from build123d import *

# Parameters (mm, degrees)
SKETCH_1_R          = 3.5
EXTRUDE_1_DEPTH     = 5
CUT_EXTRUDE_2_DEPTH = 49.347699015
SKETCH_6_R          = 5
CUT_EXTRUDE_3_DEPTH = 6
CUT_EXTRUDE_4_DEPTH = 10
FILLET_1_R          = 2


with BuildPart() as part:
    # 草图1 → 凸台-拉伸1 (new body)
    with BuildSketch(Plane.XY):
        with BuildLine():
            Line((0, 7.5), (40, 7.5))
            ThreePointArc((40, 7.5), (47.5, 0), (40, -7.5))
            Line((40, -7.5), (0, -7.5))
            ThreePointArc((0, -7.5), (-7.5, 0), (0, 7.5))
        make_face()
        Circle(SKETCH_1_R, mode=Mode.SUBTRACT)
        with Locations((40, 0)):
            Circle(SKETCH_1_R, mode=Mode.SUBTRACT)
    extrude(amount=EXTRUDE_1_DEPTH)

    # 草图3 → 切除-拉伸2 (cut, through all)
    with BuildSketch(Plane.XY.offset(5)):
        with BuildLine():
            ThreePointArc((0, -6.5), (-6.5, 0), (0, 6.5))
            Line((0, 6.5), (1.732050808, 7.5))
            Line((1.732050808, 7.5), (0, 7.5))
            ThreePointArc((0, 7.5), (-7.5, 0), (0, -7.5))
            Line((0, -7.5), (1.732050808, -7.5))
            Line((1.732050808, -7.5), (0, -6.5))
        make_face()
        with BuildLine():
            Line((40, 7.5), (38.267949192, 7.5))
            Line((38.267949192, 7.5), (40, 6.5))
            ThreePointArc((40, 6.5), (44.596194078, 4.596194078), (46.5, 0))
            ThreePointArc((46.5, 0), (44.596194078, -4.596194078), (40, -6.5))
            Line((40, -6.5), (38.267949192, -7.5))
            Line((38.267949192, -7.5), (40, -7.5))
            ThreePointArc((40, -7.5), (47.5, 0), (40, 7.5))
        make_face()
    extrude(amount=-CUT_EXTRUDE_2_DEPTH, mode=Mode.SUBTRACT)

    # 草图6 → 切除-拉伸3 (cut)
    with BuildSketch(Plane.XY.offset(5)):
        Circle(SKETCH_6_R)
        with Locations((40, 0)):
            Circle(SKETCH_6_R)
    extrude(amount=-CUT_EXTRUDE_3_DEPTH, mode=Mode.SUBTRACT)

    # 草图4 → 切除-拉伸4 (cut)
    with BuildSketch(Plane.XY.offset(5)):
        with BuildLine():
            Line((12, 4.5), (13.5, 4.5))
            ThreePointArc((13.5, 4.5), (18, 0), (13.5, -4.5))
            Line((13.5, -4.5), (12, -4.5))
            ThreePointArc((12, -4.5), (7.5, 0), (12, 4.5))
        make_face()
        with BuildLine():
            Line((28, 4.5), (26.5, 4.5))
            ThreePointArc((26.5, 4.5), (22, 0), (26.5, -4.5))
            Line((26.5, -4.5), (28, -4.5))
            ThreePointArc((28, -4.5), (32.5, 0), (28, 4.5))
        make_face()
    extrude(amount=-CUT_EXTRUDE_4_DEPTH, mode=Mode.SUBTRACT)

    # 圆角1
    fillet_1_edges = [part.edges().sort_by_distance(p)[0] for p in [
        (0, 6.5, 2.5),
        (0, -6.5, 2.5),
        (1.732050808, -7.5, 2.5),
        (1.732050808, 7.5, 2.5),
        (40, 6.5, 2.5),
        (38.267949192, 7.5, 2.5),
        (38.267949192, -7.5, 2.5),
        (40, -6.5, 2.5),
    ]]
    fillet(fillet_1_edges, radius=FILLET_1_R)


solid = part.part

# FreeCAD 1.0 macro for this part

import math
import FreeCAD as App
import Part
import Sketcher

V = App.Vector
Q = App.Units.Quantity


def edges_at(feature, points):
    """Names of the edges that pass closest to the given points."""
    edges = feature.Shape.Edges
    near = lambda p: min(range(len(edges)), key=lambda i: edges[i].distToShape(Part.Vertex(*p))[0])
    return sorted({f"Edge{near(p) + 1}" for p in points})

doc = App.newDocument("Part")
body = doc.addObject("PartDesign::Body", "Body")

sketch1 = body.newObject("Sketcher::SketchObject", "Sketch")
sketch1.AttachmentSupport = (doc.getObject("XY_Plane"), [""])
sketch1.MapMode = "FlatFace"
sketch1.addGeometry(Part.LineSegment(V(40, 7.5, 0), V(0, 7.5, 0)), False)
sketch1.addGeometry(Part.ArcOfCircle(Part.Circle(V(0, 0, 0), V(0, 0, 1), 7.5), math.radians(90), math.radians(270)), False)
sketch1.addGeometry(Part.LineSegment(V(0, -7.5, 0), V(40, -7.5, 0)), False)
sketch1.addGeometry(Part.ArcOfCircle(Part.Circle(V(40, 0, 0), V(0, 0, 1), 7.5), math.radians(-90), math.radians(90)), False)
sketch1.addGeometry(Part.Circle(V(40, 0, 0), V(0, 0, 1), 3.5), False)
sketch1.addGeometry(Part.Circle(V(0, 0, 0), V(0, 0, 1), 3.5), False)
sketch1.addConstraint(Sketcher.Constraint("Tangent", 0, 2, 1, 1))
sketch1.addConstraint(Sketcher.Constraint("Tangent", 1, 2, 2, 1))
sketch1.addConstraint(Sketcher.Constraint("Tangent", 2, 2, 3, 1))
sketch1.addConstraint(Sketcher.Constraint("Tangent", 3, 2, 0, 1))
sketch1.addConstraint(Sketcher.Constraint("Horizontal", 0))
sketch1.addConstraint(Sketcher.Constraint("Horizontal", 2))
sketch1.addConstraint(Sketcher.Constraint("Coincident", 1, 3, -1, 1))
sketch1.addConstraint(Sketcher.Constraint("Coincident", 5, 3, -1, 1))
sketch1.addConstraint(Sketcher.Constraint("Coincident", 4, 3, 3, 3))
sketch1.addConstraint(Sketcher.Constraint("Equal", 4, 5))
sketch1.addConstraint(Sketcher.Constraint("Diameter", 4, Q("7 mm")))
sketch1.addConstraint(Sketcher.Constraint("Radius", 1, Q("7.5 mm")))
sketch1.addConstraint(Sketcher.Constraint("DistanceX", 0, 2, 0, 1, Q("40 mm")))
pad1 = body.newObject("PartDesign::Pad", "Pad")
pad1.Profile = sketch1
pad1.Length = 5

sketch2 = body.newObject("Sketcher::SketchObject", "Sketch001")
sketch2.AttachmentSupport = (doc.getObject("XY_Plane"), [""])
sketch2.MapMode = "FlatFace"
sketch2.AttachmentOffset = App.Placement(V(0, 0, 5), App.Rotation())
sketch2.addGeometry(Part.ArcOfCircle(Part.Circle(V(0, 0, 0), V(0, 0, 1), 6.5), math.radians(90), math.radians(270)), False)
sketch2.addGeometry(Part.LineSegment(V(0, 6.5, 0), V(1.732051, 7.5, 0)), False)
sketch2.addGeometry(Part.LineSegment(V(1.732051, 7.5, 0), V(0, 7.5, 0)), False)
sketch2.addGeometry(Part.ArcOfCircle(Part.Circle(V(0, 0, 0), V(0, 0, 1), 7.5), math.radians(90), math.radians(270)), False)
sketch2.addGeometry(Part.LineSegment(V(0, -7.5, 0), V(1.732051, -7.5, 0)), False)
sketch2.addGeometry(Part.LineSegment(V(1.732051, -7.5, 0), V(0, -6.5, 0)), False)
sketch2.addGeometry(Part.LineSegment(V(40, 7.5, 0), V(38.267949, 7.5, 0)), False)
sketch2.addGeometry(Part.LineSegment(V(38.267949, 7.5, 0), V(40, 6.5, 0)), False)
sketch2.addGeometry(Part.ArcOfCircle(Part.Circle(V(40, 0, 0), V(0, 0, 1), 6.5), math.radians(0), math.radians(90)), False)
sketch2.addGeometry(Part.ArcOfCircle(Part.Circle(V(40, 0, 0), V(0, 0, 1), 6.5), math.radians(-90), math.radians(0)), False)
sketch2.addGeometry(Part.LineSegment(V(40, -6.5, 0), V(38.267949, -7.5, 0)), False)
sketch2.addGeometry(Part.LineSegment(V(38.267949, -7.5, 0), V(40, -7.5, 0)), False)
sketch2.addGeometry(Part.ArcOfCircle(Part.Circle(V(40, 0, 0), V(0, 0, 1), 7.5), math.radians(-90), math.radians(90)), False)
sketch2.addConstraint(Sketcher.Constraint("Coincident", 0, 1, 1, 1))
sketch2.addConstraint(Sketcher.Constraint("Coincident", 1, 2, 2, 1))
sketch2.addConstraint(Sketcher.Constraint("Tangent", 2, 2, 3, 1))
sketch2.addConstraint(Sketcher.Constraint("Tangent", 3, 2, 4, 1))
sketch2.addConstraint(Sketcher.Constraint("Coincident", 4, 2, 5, 1))
sketch2.addConstraint(Sketcher.Constraint("Coincident", 5, 2, 0, 2))
sketch2.addConstraint(Sketcher.Constraint("Coincident", 6, 2, 7, 1))
sketch2.addConstraint(Sketcher.Constraint("Coincident", 7, 2, 8, 2))
sketch2.addConstraint(Sketcher.Constraint("Tangent", 8, 1, 9, 2))
sketch2.addConstraint(Sketcher.Constraint("Coincident", 9, 1, 10, 1))
sketch2.addConstraint(Sketcher.Constraint("Coincident", 10, 2, 11, 1))
sketch2.addConstraint(Sketcher.Constraint("Tangent", 11, 2, 12, 1))
sketch2.addConstraint(Sketcher.Constraint("Tangent", 12, 2, 6, 1))
sketch2.addConstraint(Sketcher.Constraint("Horizontal", 2))
sketch2.addConstraint(Sketcher.Constraint("Horizontal", 4))
sketch2.addConstraint(Sketcher.Constraint("Horizontal", 6))
sketch2.addConstraint(Sketcher.Constraint("Horizontal", 11))
sketch2.addConstraint(Sketcher.Constraint("Coincident", 0, 3, -1, 1))
sketch2.addConstraint(Sketcher.Constraint("Coincident", 3, 3, -1, 1))
sketch2.addConstraint(Sketcher.Constraint("Coincident", 12, 3, 8, 3))
sketch2.addConstraint(Sketcher.Constraint("Equal", 0, 8))
sketch2.addConstraint(Sketcher.Constraint("Equal", 8, 9))
sketch2.addConstraint(Sketcher.Constraint("Equal", 3, 12))
sketch2.addConstraint(Sketcher.Constraint("Symmetric", 7, 2, 9, 1, -1))
sketch2.addConstraint(Sketcher.Constraint("PointOnObject", 0, 1, -2))
sketch2.addConstraint(Sketcher.Constraint("PointOnObject", 5, 2, -2))
sketch2.addConstraint(Sketcher.Constraint("PointOnObject", 8, 1, -1))
sketch2.addConstraint(Sketcher.Constraint("Parallel", 5, 7))
sketch2.addConstraint(Sketcher.Constraint("Parallel", 1, 10))
sketch2.addConstraint(Sketcher.Constraint("Vertical", 1, 2, 4, 2))
sketch2.addConstraint(Sketcher.Constraint("Vertical", 12, 3, 7, 2))
sketch2.addConstraint(Sketcher.Constraint("Radius", 0, Q("6.5 mm")))
sketch2.addConstraint(Sketcher.Constraint("Radius", 3, Q("7.5 mm")))
sketch2.addConstraint(Sketcher.Constraint("Angle", 1, Q("30 deg")))
sketch2.addConstraint(Sketcher.Constraint("DistanceX", -1, 1, 8, 3, Q("40 mm")))
pocket1 = body.newObject("PartDesign::Pocket", "Pocket")
pocket1.Profile = sketch2
pocket1.Type = "ThroughAll"

sketch3 = body.newObject("Sketcher::SketchObject", "Sketch002")
sketch3.AttachmentSupport = (doc.getObject("XY_Plane"), [""])
sketch3.MapMode = "FlatFace"
sketch3.AttachmentOffset = App.Placement(V(0, 0, 5), App.Rotation())
sketch3.addGeometry(Part.Circle(V(0, 0, 0), V(0, 0, 1), 5), False)
sketch3.addGeometry(Part.Circle(V(40, 0, 0), V(0, 0, 1), 5), False)
sketch3.addConstraint(Sketcher.Constraint("Coincident", 0, 3, -1, 1))
sketch3.addConstraint(Sketcher.Constraint("Equal", 0, 1))
sketch3.addConstraint(Sketcher.Constraint("PointOnObject", 1, 3, -1))
sketch3.addConstraint(Sketcher.Constraint("Diameter", 0, Q("10 mm")))
sketch3.addConstraint(Sketcher.Constraint("DistanceX", -1, 1, 1, 3, Q("40 mm")))
pocket2 = body.newObject("PartDesign::Pocket", "Pocket001")
pocket2.Profile = sketch3
pocket2.Length = 6

sketch4 = body.newObject("Sketcher::SketchObject", "Sketch003")
sketch4.AttachmentSupport = (doc.getObject("XY_Plane"), [""])
sketch4.MapMode = "FlatFace"
sketch4.AttachmentOffset = App.Placement(V(0, 0, 5), App.Rotation())
sketch4.addGeometry(Part.LineSegment(V(13.5, 4.5, 0), V(12, 4.5, 0)), False)
sketch4.addGeometry(Part.ArcOfCircle(Part.Circle(V(12, 0, 0), V(0, 0, 1), 4.5), math.radians(90), math.radians(270)), False)
sketch4.addGeometry(Part.LineSegment(V(12, -4.5, 0), V(13.5, -4.5, 0)), False)
sketch4.addGeometry(Part.ArcOfCircle(Part.Circle(V(13.5, 0, 0), V(0, 0, 1), 4.5), math.radians(-90), math.radians(90)), False)
sketch4.addGeometry(Part.LineSegment(V(28, 4.5, 0), V(26.5, 4.5, 0)), False)
sketch4.addGeometry(Part.ArcOfCircle(Part.Circle(V(26.5, 0, 0), V(0, 0, 1), 4.5), math.radians(90), math.radians(270)), False)
sketch4.addGeometry(Part.LineSegment(V(26.5, -4.5, 0), V(28, -4.5, 0)), False)
sketch4.addGeometry(Part.ArcOfCircle(Part.Circle(V(28, 0, 0), V(0, 0, 1), 4.5), math.radians(-90), math.radians(90)), False)
sketch4.addConstraint(Sketcher.Constraint("Tangent", 0, 2, 1, 1))
sketch4.addConstraint(Sketcher.Constraint("Tangent", 1, 2, 2, 1))
sketch4.addConstraint(Sketcher.Constraint("Tangent", 2, 2, 3, 1))
sketch4.addConstraint(Sketcher.Constraint("Tangent", 3, 2, 0, 1))
sketch4.addConstraint(Sketcher.Constraint("Tangent", 4, 2, 5, 1))
sketch4.addConstraint(Sketcher.Constraint("Tangent", 5, 2, 6, 1))
sketch4.addConstraint(Sketcher.Constraint("Tangent", 6, 2, 7, 1))
sketch4.addConstraint(Sketcher.Constraint("Tangent", 7, 2, 4, 1))
sketch4.addConstraint(Sketcher.Constraint("Horizontal", 0))
sketch4.addConstraint(Sketcher.Constraint("Horizontal", 2))
sketch4.addConstraint(Sketcher.Constraint("Horizontal", 4))
sketch4.addConstraint(Sketcher.Constraint("Horizontal", 6))
sketch4.addConstraint(Sketcher.Constraint("Equal", 3, 5))
sketch4.addConstraint(Sketcher.Constraint("PointOnObject", 1, 3, -1))
sketch4.addConstraint(Sketcher.Constraint("PointOnObject", 5, 3, -1))
sketch4.addConstraint(Sketcher.Constraint("Equal", 2, 4))
sketch4.addConstraint(Sketcher.Constraint("Radius", 1, Q("4.5 mm")))
sketch4.addConstraint(Sketcher.Constraint("DistanceX", 0, 2, 0, 1, Q("1.5 mm")))
sketch4.addConstraint(Sketcher.Constraint("DistanceX", -1, 1, 1, 3, Q("12 mm")))
sketch4.addConstraint(Sketcher.Constraint("DistanceX", -1, 1, 7, 3, Q("28 mm")))
pocket3 = body.newObject("PartDesign::Pocket", "Pocket002")
pocket3.Profile = sketch4
pocket3.Length = 10
doc.recompute()

fillet = body.newObject("PartDesign::Fillet", "Fillet")
fillet.Base = (pocket3, edges_at(pocket3, [
    (0, 6.5, 2.5),
    (0, -6.5, 2.5),
    (1.732, -7.5, 2.5),
    (1.732, 7.5, 2.5),
    (40, 6.5, 2.5),
    (38.268, 7.5, 2.5),
    (38.268, -7.5, 2.5),
    (40, -6.5, 2.5),
]))
fillet.Radius = 2

doc.recompute()
